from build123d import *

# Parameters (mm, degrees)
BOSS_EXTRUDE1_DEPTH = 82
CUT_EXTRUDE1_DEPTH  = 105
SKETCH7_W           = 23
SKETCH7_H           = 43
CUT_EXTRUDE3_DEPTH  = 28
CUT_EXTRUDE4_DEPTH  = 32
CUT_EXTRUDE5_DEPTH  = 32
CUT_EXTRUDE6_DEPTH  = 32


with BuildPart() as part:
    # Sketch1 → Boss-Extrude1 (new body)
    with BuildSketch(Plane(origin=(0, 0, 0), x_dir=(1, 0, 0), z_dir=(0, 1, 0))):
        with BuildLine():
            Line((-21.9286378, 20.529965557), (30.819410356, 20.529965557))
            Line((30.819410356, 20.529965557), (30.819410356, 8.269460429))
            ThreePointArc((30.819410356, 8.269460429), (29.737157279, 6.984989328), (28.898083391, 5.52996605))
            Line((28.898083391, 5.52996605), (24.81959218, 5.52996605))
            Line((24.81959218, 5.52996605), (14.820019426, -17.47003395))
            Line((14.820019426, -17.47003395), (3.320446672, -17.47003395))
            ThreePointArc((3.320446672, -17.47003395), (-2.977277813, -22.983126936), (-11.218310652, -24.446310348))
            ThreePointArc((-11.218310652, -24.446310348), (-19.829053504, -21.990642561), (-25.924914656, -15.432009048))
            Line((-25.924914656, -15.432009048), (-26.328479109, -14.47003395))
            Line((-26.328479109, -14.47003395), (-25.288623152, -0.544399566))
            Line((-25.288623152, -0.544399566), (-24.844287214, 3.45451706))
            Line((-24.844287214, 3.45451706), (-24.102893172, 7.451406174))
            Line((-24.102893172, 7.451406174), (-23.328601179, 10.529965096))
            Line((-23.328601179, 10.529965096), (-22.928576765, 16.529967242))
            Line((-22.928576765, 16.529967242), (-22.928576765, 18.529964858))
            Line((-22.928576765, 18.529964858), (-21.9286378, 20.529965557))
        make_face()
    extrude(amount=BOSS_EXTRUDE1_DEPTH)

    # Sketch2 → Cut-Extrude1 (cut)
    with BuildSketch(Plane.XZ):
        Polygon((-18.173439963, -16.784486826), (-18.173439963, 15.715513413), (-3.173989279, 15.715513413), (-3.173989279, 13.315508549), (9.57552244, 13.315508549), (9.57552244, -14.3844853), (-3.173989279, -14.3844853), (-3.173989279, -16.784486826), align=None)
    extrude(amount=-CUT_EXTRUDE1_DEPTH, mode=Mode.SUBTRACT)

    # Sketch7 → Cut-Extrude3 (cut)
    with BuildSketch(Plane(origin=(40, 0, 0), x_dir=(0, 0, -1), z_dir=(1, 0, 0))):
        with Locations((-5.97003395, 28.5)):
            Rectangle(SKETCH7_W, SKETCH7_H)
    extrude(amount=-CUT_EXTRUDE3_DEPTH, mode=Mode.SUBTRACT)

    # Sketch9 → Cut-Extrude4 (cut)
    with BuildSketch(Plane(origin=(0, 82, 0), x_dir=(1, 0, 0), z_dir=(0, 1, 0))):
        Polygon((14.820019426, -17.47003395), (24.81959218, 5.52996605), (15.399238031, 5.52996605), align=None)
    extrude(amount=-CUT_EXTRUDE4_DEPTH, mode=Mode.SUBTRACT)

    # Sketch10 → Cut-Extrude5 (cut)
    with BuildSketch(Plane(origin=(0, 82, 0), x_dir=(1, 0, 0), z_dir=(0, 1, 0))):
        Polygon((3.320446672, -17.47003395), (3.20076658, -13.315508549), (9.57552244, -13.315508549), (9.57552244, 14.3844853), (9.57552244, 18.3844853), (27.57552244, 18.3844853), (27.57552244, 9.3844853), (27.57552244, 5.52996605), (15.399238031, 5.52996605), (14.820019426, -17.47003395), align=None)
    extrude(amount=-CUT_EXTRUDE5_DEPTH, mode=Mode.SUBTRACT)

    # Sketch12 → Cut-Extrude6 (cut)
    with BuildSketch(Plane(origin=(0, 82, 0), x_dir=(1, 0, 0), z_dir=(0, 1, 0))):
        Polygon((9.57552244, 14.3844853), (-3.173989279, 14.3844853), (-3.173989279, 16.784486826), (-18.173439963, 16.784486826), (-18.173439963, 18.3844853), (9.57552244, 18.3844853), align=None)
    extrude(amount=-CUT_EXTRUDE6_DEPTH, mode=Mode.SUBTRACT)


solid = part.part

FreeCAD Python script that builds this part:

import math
import FreeCAD as App
import Part
import Sketcher
from FreeCAD import Vector


def add_polygon(sketch, points):
    """Adds a closed chain of lines whose ends are joined by coincident constraints."""
    first, n = sketch.GeometryCount, len(points)
    for a, b in zip(points, points[1:] + points[:1]):
        sketch.addGeometry(Part.LineSegment(App.Vector(*a, 0), App.Vector(*b, 0)), False)
    for i in range(n):
        sketch.addConstraint(Sketcher.Constraint("Coincident", first + i, 2, first + (i + 1) % n, 1))

doc = App.newDocument("Part")
body = doc.addObject("PartDesign::Body", "Body")

# Sketch on XZ plane
sketch1 = doc.addObject("Sketcher::SketchObject", "Sketch")
body.addObject(sketch1)
sketch1.AttachmentSupport = (doc.XZ_Plane, [""])
sketch1.MapMode = "FlatFace"
sketch1.addGeometry(Part.LineSegment(Vector(30.8, -20.5, 0), Vector(-21.9, -20.5, 0)), False)
sketch1.addGeometry(Part.LineSegment(Vector(-21.9, -20.5, 0), Vector(-22.9, -18.5, 0)), False)
sketch1.addGeometry(Part.LineSegment(Vector(-22.9, -18.5, 0), Vector(-22.9, -16.5, 0)), False)
sketch1.addGeometry(Part.LineSegment(Vector(-22.9, -16.5, 0), Vector(-23.3, -10.5, 0)), False)
sketch1.addGeometry(Part.LineSegment(Vector(-23.3, -10.5, 0), Vector(-24.1, -7.5, 0)), False)
sketch1.addGeometry(Part.LineSegment(Vector(-24.1, -7.5, 0), Vector(-24.8, -3.5, 0)), False)
sketch1.addGeometry(Part.LineSegment(Vector(-24.8, -3.5, 0), Vector(-25.3, 0.5, 0)), False)
sketch1.addGeometry(Part.LineSegment(Vector(-25.3, 0.5, 0), Vector(-26.3, 14.5, 0)), False)
sketch1.addGeometry(Part.LineSegment(Vector(-26.3, 14.5, 0), Vector(-25.9, 15.4, 0)), False)
sketch1.addGeometry(Part.ArcOfCircle(Part.Circle(Vector(-11.1, 7.8, 0), Vector(0, 0, 1), 16.7), math.radians(90), math.radians(153)), False)
sketch1.addGeometry(Part.ArcOfCircle(Part.Circle(Vector(-9.7, 8.9, 0), Vector(0, 0, 1), 15.6), math.radians(33), math.radians(95)), False)
sketch1.addGeometry(Part.LineSegment(Vector(3.3, 17.5, 0), Vector(14.8, 17.5, 0)), False)
sketch1.addGeometry(Part.LineSegment(Vector(14.8, 17.5, 0), Vector(24.8, -5.5, 0)), False)
sketch1.addGeometry(Part.LineSegment(Vector(24.8, -5.5, 0), Vector(28.9, -5.5, 0)), False)
sketch1.addGeometry(Part.ArcOfCircle(Part.Circle(Vector(37.5, -1.5, 0), Vector(0, 0, 1), 9.5), math.radians(-155), math.radians(-135)), False)
sketch1.addGeometry(Part.LineSegment(Vector(30.8, -8.3, 0), Vector(30.8, -20.5, 0)), False)
sketch1.addConstraint(Sketcher.Constraint("Coincident", 0, 2, 1, 1))
sketch1.addConstraint(Sketcher.Constraint("Coincident", 1, 2, 2, 1))
sketch1.addConstraint(Sketcher.Constraint("Coincident", 2, 2, 3, 1))
sketch1.addConstraint(Sketcher.Constraint("Coincident", 3, 2, 4, 1))
sketch1.addConstraint(Sketcher.Constraint("Coincident", 4, 2, 5, 1))
sketch1.addConstraint(Sketcher.Constraint("Coincident", 5, 2, 6, 1))
sketch1.addConstraint(Sketcher.Constraint("Coincident", 6, 2, 7, 1))
sketch1.addConstraint(Sketcher.Constraint("Coincident", 7, 2, 8, 1))
sketch1.addConstraint(Sketcher.Constraint("Coincident", 8, 2, 9, 2))
sketch1.addConstraint(Sketcher.Constraint("Coincident", 9, 1, 10, 2))
sketch1.addConstraint(Sketcher.Constraint("Coincident", 10, 1, 11, 1))
sketch1.addConstraint(Sketcher.Constraint("Coincident", 11, 2, 12, 1))
sketch1.addConstraint(Sketcher.Constraint("Coincident", 12, 2, 13, 1))
sketch1.addConstraint(Sketcher.Constraint("Coincident", 13, 2, 14, 1))
sketch1.addConstraint(Sketcher.Constraint("Coincident", 14, 2, 15, 1))
sketch1.addConstraint(Sketcher.Constraint("Coincident", 15, 2, 0, 1))
sketch1.addConstraint(Sketcher.Constraint("Horizontal", 0))
sketch1.addConstraint(Sketcher.Constraint("Vertical", 2))
sketch1.addConstraint(Sketcher.Constraint("Horizontal", 11))
sketch1.addConstraint(Sketcher.Constraint("Horizontal", 13))
sketch1.addConstraint(Sketcher.Constraint("Vertical", 15))
sketch1.addConstraint(Sketcher.Constraint("DistanceY", 0, 2, 1, 2, 2.000001))
sketch1.addConstraint(Sketcher.Constraint("DistanceY", 0, 2, 2, 2, 3.999998))
sketch1.addConstraint(Sketcher.Constraint("DistanceY", 1, 2, 3, 2, 8.0))
sketch1.addConstraint(Sketcher.Constraint("DistanceY", 7, 2, 10, 1, 3.0))
sketch1.addConstraint(Sketcher.Constraint("DistanceY", 12, 2, 11, 2, 23.0))
sketch1.addConstraint(Sketcher.Constraint("DistanceY", 15, 2, 13, 2, 15.0))
sketch1.addConstraint(Sketcher.Constraint("Radius", 9, 16.660212))
sketch1.addConstraint(Sketcher.Constraint("Radius", 10, 15.595562))
sketch1.addConstraint(Sketcher.Constraint("Radius", 14, 9.497964))
sketch1.addConstraint(Sketcher.Constraint("DistanceX", 0, 2, 0, 1, 52.748048))
sketch1.addConstraint(Sketcher.Constraint("DistanceX", 13, 1, 13, 2, 4.078491))
sketch1.addConstraint(Sketcher.Constraint("DistanceX", 3, 2, -1, 1, 23.328601))
sketch1.addConstraint(Sketcher.Constraint("DistanceY", -1, 1, 6, 2, 0.5444))
sketch1.addConstraint(Sketcher.Constraint("DistanceY", 8, 2, 9, 1, 9.014301))
sketch1.addConstraint(Sketcher.Constraint("DistanceX", 9, 3, 10, 1, 14.443101))
sketch1.addConstraint(Sketcher.Constraint("Distance", 1, 2.236041))
sketch1.addConstraint(Sketcher.Constraint("Distance", 5, 4.065069))
sketch1.addConstraint(Sketcher.Constraint("DistanceX", 11, 1, 11, 2, 11.499573))
sketch1.addConstraint(Sketcher.Constraint("DistanceY", 15, 2, 15, 1, 12.260505))
sketch1.addConstraint(Sketcher.Constraint("DistanceY", -1, 1, 10, 3, 8.92249))
sketch1.addConstraint(Sketcher.Constraint("DistanceX", -1, 1, 14, 3, 37.513281))
sketch1.addConstraint(Sketcher.Constraint("DistanceX", 7, 2, -1, 1, 26.328479))
sketch1.addConstraint(Sketcher.Constraint("DistanceY", -1, 1, 8, 2, 15.432009))
sketch1.addConstraint(Sketcher.Constraint("DistanceX", 9, 1, -1, 1, 11.218311))
sketch1.addConstraint(Sketcher.Constraint("DistanceX", -1, 1, 11, 2, 14.820019))
sketch1.addConstraint(Sketcher.Constraint("DistanceX", -1, 1, 14, 2, 30.81941))
sketch1.addConstraint(Sketcher.Constraint("DistanceX", 4, 2, 3, 2, 0.774292))
sketch1.addConstraint(Sketcher.Constraint("DistanceY", 3, 2, 4, 2, 3.078559))
sketch1.addConstraint(Sketcher.Constraint("DistanceY", 4, 2, 5, 2, 3.996889))
sketch1.addConstraint(Sketcher.Constraint("DistanceX", 6, 2, 4, 2, 1.18573))
pad1 = doc.addObject("PartDesign::Pad", "Pad")
body.addObject(pad1)
pad1.Profile = sketch1
pad1.Length = 82
pad1.Reversed = True

# Sketch on XZ plane
sketch2 = doc.addObject("Sketcher::SketchObject", "Sketch001")
body.addObject(sketch2)
sketch2.AttachmentSupport = (doc.XZ_Plane, [""])
sketch2.MapMode = "FlatFace"
add_polygon(sketch2, [(-18.2, 15.7), (-18.2, -16.8), (-3.2, -16.8), (-3.2, -14.4), (9.6, -14.4), (9.6, 13.3), (-3.2, 13.3), (-3.2, 15.7)])  # lines 0-7
sketch2.addConstraint(Sketcher.Constraint("Vertical", 0))
sketch2.addConstraint(Sketcher.Constraint("Horizontal", 1))
sketch2.addConstraint(Sketcher.Constraint("Vertical", 2))
sketch2.addConstraint(Sketcher.Constraint("Horizontal", 3))
sketch2.addConstraint(Sketcher.Constraint("Vertical", 4))
sketch2.addConstraint(Sketcher.Constraint("Horizontal", 5))
sketch2.addConstraint(Sketcher.Constraint("Vertical", 6))
sketch2.addConstraint(Sketcher.Constraint("Horizontal", 7))
sketch2.addConstraint(Sketcher.Constraint("Vertical", 2, 2, 5, 2))
sketch2.addConstraint(Sketcher.Constraint("DistanceY", 0, 2, 0, 1, 32.5))
sketch2.addConstraint(Sketcher.Constraint("DistanceY", 2, 1, 2, 2, 2.400002))
sketch2.addConstraint(Sketcher.Constraint("DistanceX", 1, 1, 1, 2, 14.999451))
sketch2.addConstraint(Sketcher.Constraint("DistanceX", 3, 1, 3, 2, 12.749512))
sketch2.addConstraint(Sketcher.Constraint("DistanceY", 4, 1, 4, 2, 27.699994))
sketch2.addConstraint(Sketcher.Constraint("DistanceX", 0, 2, -1, 1, 18.17344))
sketch2.addConstraint(Sketcher.Constraint("DistanceY", -1, 1, 4, 2, 13.315509))
pocket1 = doc.addObject("PartDesign::Pocket", "Pocket")
body.addObject(pocket1)
pocket1.Profile = sketch2
pocket1.Length = 105

# Sketch on YZ plane
sketch3 = doc.addObject("Sketcher::SketchObject", "Sketch002")
body.addObject(sketch3)
sketch3.AttachmentSupport = (doc.YZ_Plane, [""])
sketch3.MapMode = "FlatFace"
sketch3.AttachmentOffset = App.Placement(Vector(0, 0, 40), App.Rotation())
add_polygon(sketch3, [(50, 17), (7, 17), (7, -6), (50, -6)])  # lines 0-3
sketch3.addConstraint(Sketcher.Constraint("Horizontal", 0))
sketch3.addConstraint(Sketcher.Constraint("Vertical", 1))
sketch3.addConstraint(Sketcher.Constraint("Horizontal", 2))
sketch3.addConstraint(Sketcher.Constraint("Vertical", 3))
sketch3.addConstraint(Sketcher.Constraint("DistanceX", 0, 2, 0, 1, 43.0))
sketch3.addConstraint(Sketcher.Constraint("DistanceY", 1, 2, 1, 1, 23.0))
sketch3.addConstraint(Sketcher.Constraint("DistanceX", -1, 1, 0, 2, 7.0))
sketch3.addConstraint(Sketcher.Constraint("DistanceY", -1, 1, 0, 2, 17.470034))
pocket2 = doc.addObject("PartDesign::Pocket", "Pocket001")
body.addObject(pocket2)
pocket2.Profile = sketch3
pocket2.Length = 28

# Sketch on XZ plane
sketch4 = doc.addObject("Sketcher::SketchObject", "Sketch003")
body.addObject(sketch4)
sketch4.AttachmentSupport = (doc.XZ_Plane, [""])
sketch4.MapMode = "FlatFace"
sketch4.AttachmentOffset = App.Placement(Vector(0, 0, -82), App.Rotation())
add_polygon(sketch4, [(15, 17), (25, -6), (15, -6)])  # lines 0-2
sketch4.addConstraint(Sketcher.Constraint("Horizontal", 1))
sketch4.addConstraint(Sketcher.Constraint("DistanceY", 1, 2, 2, 2, 23.0))
sketch4.addConstraint(Sketcher.Constraint("DistanceX", 1, 2, 1, 1, 9.420354))
sketch4.addConstraint(Sketcher.Constraint("DistanceX", -1, 1, 1, 2, 15.399238))
sketch4.addConstraint(Sketcher.Constraint("DistanceX", -1, 1, 2, 2, 14.820019))
sketch4.addConstraint(Sketcher.Constraint("DistanceY", 0, 2, -1, 1, 5.529966))
pocket3 = doc.addObject("PartDesign::Pocket", "Pocket002")
body.addObject(pocket3)
pocket3.Profile = sketch4
pocket3.Length = 32
pocket3.Reversed = True

# Sketch on XZ plane
sketch5 = doc.addObject("Sketcher::SketchObject", "Sketch004")
body.addObject(sketch5)
sketch5.AttachmentSupport = (doc.XZ_Plane, [""])
sketch5.MapMode = "FlatFace"
sketch5.AttachmentOffset = App.Placement(Vector(0, 0, -82), App.Rotation())
add_polygon(sketch5, [(3.2, 13.3), (3.3, 17.5), (14.8, 17.5), (15.4, -5.5), (27.6, -5.5), (27.6, -18.4), (9.6, -18.4), (9.6, 13.3)])  # lines 0-7
sketch5.addConstraint(Sketcher.Constraint("Horizontal", 1))
sketch5.addConstraint(Sketcher.Constraint("Horizontal", 3))
sketch5.addConstraint(Sketcher.Constraint("Vertical", 4))
sketch5.addConstraint(Sketcher.Constraint("Horizontal", 5))
sketch5.addConstraint(Sketcher.Constraint("Vertical", 6))
sketch5.addConstraint(Sketcher.Constraint("Horizontal", 7))
sketch5.addConstraint(Sketcher.Constraint("DistanceX", 5, 2, 5, 1, 18.0))
sketch5.addConstraint(Sketcher.Constraint("DistanceY", 2, 2, 1, 2, 23.0))
sketch5.addConstraint(Sketcher.Constraint("DistanceY", 4, 2, 4, 1, 12.854519))
sketch5.addConstraint(Sketcher.Constraint("Distance", 0, 4.156249))
sketch5.addConstraint(Sketcher.Constraint("DistanceX", 1, 1, 1, 2, 11.499573))
sketch5.addConstraint(Sketcher.Constraint("DistanceX", 3, 1, 3, 2, 12.176284))
sketch5.addConstraint(Sketcher.Constraint("DistanceX", 7, 2, 7, 1, 6.374756))
sketch5.addConstraint(Sketcher.Constraint("DistanceY", 6, 1, 6, 2, 31.699994))
sketch5.addConstraint(Sketcher.Constraint("DistanceX", -1, 1, 1, 2, 14.820019))
sketch5.addConstraint(Sketcher.Constraint("DistanceY", -1, 1, 6, 2, 13.315509))
pocket4 = doc.addObject("PartDesign::Pocket", "Pocket003")
body.addObject(pocket4)
pocket4.Profile = sketch5
pocket4.Length = 32
pocket4.Reversed = True

# Sketch on XZ plane
sketch6 = doc.addObject("Sketcher::SketchObject", "Sketch005")
body.addObject(sketch6)
sketch6.AttachmentSupport = (doc.XZ_Plane, [""])
sketch6.MapMode = "FlatFace"
sketch6.AttachmentOffset = App.Placement(Vector(0, 0, -82), App.Rotation())
add_polygon(sketch6, [(-3.2, -14.4), (9.6, -14.4), (9.6, -18.4), (-18.2, -18.4), (-18.2, -16.8), (-3.2, -16.8)])  # lines 0-5
sketch6.addConstraint(Sketcher.Constraint("Horizontal", 0))
sketch6.addConstraint(Sketcher.Constraint("Vertical", 1))
sketch6.addConstraint(Sketcher.Constraint("Horizontal", 2))
sketch6.addConstraint(Sketcher.Constraint("Vertical", 3))
sketch6.addConstraint(Sketcher.Constraint("Horizontal", 4))
sketch6.addConstraint(Sketcher.Constraint("Vertical", 5))
sketch6.addConstraint(Sketcher.Constraint("DistanceY", 1, 2, 1, 1, 4.0))
sketch6.addConstraint(Sketcher.Constraint("DistanceY", 3, 1, 3, 2, 1.599998))
sketch6.addConstraint(Sketcher.Constraint("DistanceX", 0, 1, 0, 2, 12.749512))
sketch6.addConstraint(Sketcher.Constraint("DistanceX", 4, 1, 4, 2, 14.999451))
sketch6.addConstraint(Sketcher.Constraint("DistanceX", 2, 2, -1, 1, 18.17344))
sketch6.addConstraint(Sketcher.Constraint("DistanceY", 0, 2, -1, 1, 14.384485))
pocket5 = doc.addObject("PartDesign::Pocket", "Pocket004")
body.addObject(pocket5)
pocket5.Profile = sketch6
pocket5.Length = 32
pocket5.Reversed = True

doc.recompute()
